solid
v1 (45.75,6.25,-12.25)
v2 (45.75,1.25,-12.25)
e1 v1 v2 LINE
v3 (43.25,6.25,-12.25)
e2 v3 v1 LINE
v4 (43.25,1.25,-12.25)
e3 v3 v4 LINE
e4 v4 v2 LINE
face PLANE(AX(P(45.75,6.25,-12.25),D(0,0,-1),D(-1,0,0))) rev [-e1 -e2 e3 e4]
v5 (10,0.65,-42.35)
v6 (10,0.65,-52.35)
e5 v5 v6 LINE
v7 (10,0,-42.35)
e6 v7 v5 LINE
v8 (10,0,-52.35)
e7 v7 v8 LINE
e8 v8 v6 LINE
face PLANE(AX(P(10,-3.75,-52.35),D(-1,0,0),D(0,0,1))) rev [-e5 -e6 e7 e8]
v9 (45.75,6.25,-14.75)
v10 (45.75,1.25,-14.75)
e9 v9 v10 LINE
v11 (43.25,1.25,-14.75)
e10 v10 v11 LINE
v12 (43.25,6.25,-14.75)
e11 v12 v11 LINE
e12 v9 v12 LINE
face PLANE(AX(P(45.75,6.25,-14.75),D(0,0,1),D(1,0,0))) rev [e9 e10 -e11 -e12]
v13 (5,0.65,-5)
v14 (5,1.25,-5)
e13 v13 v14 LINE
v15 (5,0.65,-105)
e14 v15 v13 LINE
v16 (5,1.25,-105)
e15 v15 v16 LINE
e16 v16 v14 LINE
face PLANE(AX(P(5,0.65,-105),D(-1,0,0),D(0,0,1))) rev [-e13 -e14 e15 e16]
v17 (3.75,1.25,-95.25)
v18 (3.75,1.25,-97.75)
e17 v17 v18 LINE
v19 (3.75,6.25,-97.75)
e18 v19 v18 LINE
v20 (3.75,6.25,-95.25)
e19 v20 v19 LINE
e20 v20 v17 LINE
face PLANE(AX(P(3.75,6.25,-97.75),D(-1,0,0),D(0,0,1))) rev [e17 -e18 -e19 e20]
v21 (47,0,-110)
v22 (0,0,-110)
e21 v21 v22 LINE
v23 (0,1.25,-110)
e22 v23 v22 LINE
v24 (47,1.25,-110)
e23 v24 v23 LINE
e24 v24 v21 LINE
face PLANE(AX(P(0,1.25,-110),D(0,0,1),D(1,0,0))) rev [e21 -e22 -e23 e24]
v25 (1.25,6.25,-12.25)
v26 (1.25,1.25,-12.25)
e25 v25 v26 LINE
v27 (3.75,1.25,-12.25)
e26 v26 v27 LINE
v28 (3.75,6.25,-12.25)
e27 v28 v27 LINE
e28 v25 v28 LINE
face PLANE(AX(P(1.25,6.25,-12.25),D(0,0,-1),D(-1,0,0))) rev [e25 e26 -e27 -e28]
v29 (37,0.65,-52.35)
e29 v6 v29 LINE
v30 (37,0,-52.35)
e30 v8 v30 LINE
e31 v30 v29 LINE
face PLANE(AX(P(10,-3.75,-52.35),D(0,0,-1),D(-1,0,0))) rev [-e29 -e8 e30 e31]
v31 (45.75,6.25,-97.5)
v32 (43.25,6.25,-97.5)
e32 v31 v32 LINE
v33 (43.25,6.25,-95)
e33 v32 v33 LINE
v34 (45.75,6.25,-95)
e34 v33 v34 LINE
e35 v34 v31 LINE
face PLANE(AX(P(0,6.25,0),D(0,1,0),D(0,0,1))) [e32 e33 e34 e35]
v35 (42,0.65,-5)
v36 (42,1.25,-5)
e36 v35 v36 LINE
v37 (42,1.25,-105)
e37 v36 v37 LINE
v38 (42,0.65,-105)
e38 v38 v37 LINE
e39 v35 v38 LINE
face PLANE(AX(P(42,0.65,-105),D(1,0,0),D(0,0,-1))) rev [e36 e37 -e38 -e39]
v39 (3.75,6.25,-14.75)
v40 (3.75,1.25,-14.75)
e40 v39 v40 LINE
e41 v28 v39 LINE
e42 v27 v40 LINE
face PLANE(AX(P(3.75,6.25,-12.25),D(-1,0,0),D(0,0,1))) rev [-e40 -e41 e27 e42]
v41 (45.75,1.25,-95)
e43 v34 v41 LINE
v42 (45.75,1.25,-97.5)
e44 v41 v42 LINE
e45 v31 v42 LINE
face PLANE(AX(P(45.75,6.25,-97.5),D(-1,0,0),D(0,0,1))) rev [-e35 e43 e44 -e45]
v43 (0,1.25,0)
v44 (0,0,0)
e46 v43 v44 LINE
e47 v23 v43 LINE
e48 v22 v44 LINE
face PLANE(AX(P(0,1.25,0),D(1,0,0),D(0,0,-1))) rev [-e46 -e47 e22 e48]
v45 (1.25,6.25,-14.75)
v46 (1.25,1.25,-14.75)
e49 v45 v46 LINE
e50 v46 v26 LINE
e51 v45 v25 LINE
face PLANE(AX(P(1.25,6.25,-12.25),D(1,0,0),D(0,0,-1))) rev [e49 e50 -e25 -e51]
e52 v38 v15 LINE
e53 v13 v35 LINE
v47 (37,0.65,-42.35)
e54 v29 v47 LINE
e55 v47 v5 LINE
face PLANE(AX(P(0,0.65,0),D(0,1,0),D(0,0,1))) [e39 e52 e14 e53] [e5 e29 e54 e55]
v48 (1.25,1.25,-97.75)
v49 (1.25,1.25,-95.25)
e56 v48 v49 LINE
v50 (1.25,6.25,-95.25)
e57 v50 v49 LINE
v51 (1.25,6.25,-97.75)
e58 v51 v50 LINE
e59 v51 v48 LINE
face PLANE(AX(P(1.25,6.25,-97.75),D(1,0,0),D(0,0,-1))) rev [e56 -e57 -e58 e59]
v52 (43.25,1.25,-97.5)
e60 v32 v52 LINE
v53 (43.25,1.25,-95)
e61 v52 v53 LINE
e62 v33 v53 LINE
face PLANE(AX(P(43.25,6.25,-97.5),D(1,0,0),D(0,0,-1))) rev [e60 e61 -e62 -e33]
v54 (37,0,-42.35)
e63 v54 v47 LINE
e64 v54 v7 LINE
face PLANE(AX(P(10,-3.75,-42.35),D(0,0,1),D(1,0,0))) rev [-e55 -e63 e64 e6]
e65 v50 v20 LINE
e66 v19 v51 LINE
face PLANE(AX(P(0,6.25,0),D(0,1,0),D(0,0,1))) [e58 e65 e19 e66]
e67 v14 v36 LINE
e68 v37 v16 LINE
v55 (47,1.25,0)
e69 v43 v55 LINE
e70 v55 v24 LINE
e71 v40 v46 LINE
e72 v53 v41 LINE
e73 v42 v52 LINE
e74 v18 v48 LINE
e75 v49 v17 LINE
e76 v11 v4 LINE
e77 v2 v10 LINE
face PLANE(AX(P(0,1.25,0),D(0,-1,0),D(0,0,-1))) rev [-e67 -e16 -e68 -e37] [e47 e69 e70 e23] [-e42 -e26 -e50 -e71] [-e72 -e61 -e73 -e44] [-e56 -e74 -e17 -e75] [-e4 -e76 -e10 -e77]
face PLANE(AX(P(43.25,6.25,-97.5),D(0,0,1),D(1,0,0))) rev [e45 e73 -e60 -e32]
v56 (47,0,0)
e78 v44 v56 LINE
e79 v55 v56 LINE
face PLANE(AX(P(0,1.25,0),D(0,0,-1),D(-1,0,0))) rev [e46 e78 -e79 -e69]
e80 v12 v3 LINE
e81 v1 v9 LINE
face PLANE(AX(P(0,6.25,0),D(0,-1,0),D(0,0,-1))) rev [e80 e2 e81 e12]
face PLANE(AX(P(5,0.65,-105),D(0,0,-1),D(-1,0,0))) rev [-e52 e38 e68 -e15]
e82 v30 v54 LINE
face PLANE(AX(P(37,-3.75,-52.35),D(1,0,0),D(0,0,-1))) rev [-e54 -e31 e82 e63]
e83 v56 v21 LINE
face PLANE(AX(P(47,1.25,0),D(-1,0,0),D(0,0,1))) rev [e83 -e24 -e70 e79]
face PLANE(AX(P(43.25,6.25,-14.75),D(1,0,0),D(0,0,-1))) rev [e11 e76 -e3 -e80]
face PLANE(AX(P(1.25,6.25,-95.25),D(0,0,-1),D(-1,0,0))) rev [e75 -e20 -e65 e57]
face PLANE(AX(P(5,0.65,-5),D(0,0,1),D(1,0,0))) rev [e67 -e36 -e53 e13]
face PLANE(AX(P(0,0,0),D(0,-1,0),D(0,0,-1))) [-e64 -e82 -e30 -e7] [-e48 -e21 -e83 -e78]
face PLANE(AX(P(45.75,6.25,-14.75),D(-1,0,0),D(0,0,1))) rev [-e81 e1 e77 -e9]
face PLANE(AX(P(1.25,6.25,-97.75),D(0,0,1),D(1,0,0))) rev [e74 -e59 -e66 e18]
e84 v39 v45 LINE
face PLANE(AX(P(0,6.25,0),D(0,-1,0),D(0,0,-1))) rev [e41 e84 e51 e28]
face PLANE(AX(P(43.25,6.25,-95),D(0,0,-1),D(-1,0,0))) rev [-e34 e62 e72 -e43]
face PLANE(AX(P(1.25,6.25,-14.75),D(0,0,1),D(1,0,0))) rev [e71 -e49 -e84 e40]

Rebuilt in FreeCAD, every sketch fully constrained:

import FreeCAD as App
import Part
import Sketcher
from FreeCAD import Vector
Q = App.Units.Quantity

doc = App.newDocument("Part")
params = doc.addObject("Spreadsheet::Sheet", "Params")
for row, (alias, value) in enumerate([
    ("sketch1_width", "47 mm"),
    ("sketch1_height", "110 mm"),
    ("pad1_length", "1.25 mm"),
    ("sketch2_width", "2.5 mm"),
    ("pad2_length", "5 mm"),
    ("sketch3_width", "27 mm"),
    ("sketch3_height", "10 mm"),
    ("pocket1_length", "5 mm"),
    ("sketch4_width", "37 mm"),
    ("sketch4_height", "100 mm"),
    ("pocket2_length", "0.6 mm"),
], start=1):
    params.set(f"A{row}", alias)
    params.set(f"B{row}", "=" + value)
    params.setAlias(f"B{row}", alias)

body = doc.addObject("PartDesign::Body", "Body")

# Sketch on XZ plane
sketch1 = body.newObject("Sketcher::SketchObject", "Sketch")
sketch1.AttachmentSupport = (doc.getObject("XZ_Plane"), [""])
sketch1.MapMode = "FlatFace"
sketch1.addGeometry([
    Part.LineSegment(Vector(0, -110, 0), Vector(0, 0, 0)),
    Part.LineSegment(Vector(0, 0, 0), Vector(47, 0, 0)),
    Part.LineSegment(Vector(47, 0, 0), Vector(47, -110, 0)),
    Part.LineSegment(Vector(47, -110, 0), Vector(0, -110, 0)),
], False)
sketch1.addConstraint([
    Sketcher.Constraint("Coincident", 0, 2, 1, 1),
    Sketcher.Constraint("Coincident", 1, 2, 2, 1),
    Sketcher.Constraint("Coincident", 2, 2, 3, 1),
    Sketcher.Constraint("Coincident", 3, 2, 0, 1),
    Sketcher.Constraint("Vertical", 0),
    Sketcher.Constraint("Horizontal", 1),
    Sketcher.Constraint("Vertical", 2),
    Sketcher.Constraint("Horizontal", 3),
    Sketcher.Constraint("Coincident", 0, 2, -1, 1),
    Sketcher.Constraint("DistanceX", 1, 1, 1, 2, Q("47 mm")),
    Sketcher.Constraint("DistanceY", 0, 1, 0, 2, Q("110 mm")),
])
sketch1.setExpression("Constraints[9]", "Params.sketch1_width")
sketch1.setExpression("Constraints[10]", "Params.sketch1_height")
pad1 = body.newObject("PartDesign::Pad", "Pad")
pad1.Profile = sketch1
pad1.setExpression("Length", "Params.pad1_length")
pad1.Reversed = True

# Sketch on XZ plane
sketch2 = body.newObject("Sketcher::SketchObject", "Sketch001")
sketch2.AttachmentSupport = (doc.getObject("XZ_Plane"), [""])
sketch2.MapMode = "FlatFace"
sketch2.AttachmentOffset = App.Placement(Vector(0, 0, -1.25), App.Rotation())
sketch2.addGeometry([
    Part.LineSegment(Vector(43.25, -97.5, 0), Vector(43.25, -95, 0)),  # 0
    Part.LineSegment(Vector(43.25, -95, 0), Vector(45.75, -95, 0)),  # 1
    Part.LineSegment(Vector(45.75, -95, 0), Vector(45.75, -97.5, 0)),  # 2
    Part.LineSegment(Vector(45.75, -97.5, 0), Vector(43.25, -97.5, 0)),  # 3
    Part.LineSegment(Vector(43.25, -14.75, 0), Vector(43.25, -12.25, 0)),  # 4
    Part.LineSegment(Vector(43.25, -12.25, 0), Vector(45.75, -12.25, 0)),  # 5
    Part.LineSegment(Vector(45.75, -12.25, 0), Vector(45.75, -14.75, 0)),  # 6
    Part.LineSegment(Vector(45.75, -14.75, 0), Vector(43.25, -14.75, 0)),  # 7
    Part.LineSegment(Vector(1.25, -14.75, 0), Vector(1.25, -12.25, 0)),  # 8
    Part.LineSegment(Vector(1.25, -12.25, 0), Vector(3.75, -12.25, 0)),  # 9
    Part.LineSegment(Vector(3.75, -12.25, 0), Vector(3.75, -14.75, 0)),  # 10
    Part.LineSegment(Vector(3.75, -14.75, 0), Vector(1.25, -14.75, 0)),  # 11
    Part.LineSegment(Vector(1.25, -97.75, 0), Vector(1.25, -95.25, 0)),  # 12
    Part.LineSegment(Vector(1.25, -95.25, 0), Vector(3.75, -95.25, 0)),  # 13
    Part.LineSegment(Vector(3.75, -95.25, 0), Vector(3.75, -97.75, 0)),  # 14
    Part.LineSegment(Vector(3.75, -97.75, 0), Vector(1.25, -97.75, 0)),  # 15
], False)
sketch2.addConstraint([
    Sketcher.Constraint("Coincident", 0, 2, 1, 1),
    Sketcher.Constraint("Coincident", 1, 2, 2, 1),
    Sketcher.Constraint("Coincident", 2, 2, 3, 1),
    Sketcher.Constraint("Coincident", 3, 2, 0, 1),
    Sketcher.Constraint("Coincident", 4, 2, 5, 1),
    Sketcher.Constraint("Coincident", 5, 2, 6, 1),
    Sketcher.Constraint("Coincident", 6, 2, 7, 1),
    Sketcher.Constraint("Coincident", 7, 2, 4, 1),
    Sketcher.Constraint("Coincident", 8, 2, 9, 1),
    Sketcher.Constraint("Coincident", 9, 2, 10, 1),
    Sketcher.Constraint("Coincident", 10, 2, 11, 1),
    Sketcher.Constraint("Coincident", 11, 2, 8, 1),
    Sketcher.Constraint("Coincident", 12, 2, 13, 1),
    Sketcher.Constraint("Coincident", 13, 2, 14, 1),
    Sketcher.Constraint("Coincident", 14, 2, 15, 1),
    Sketcher.Constraint("Coincident", 15, 2, 12, 1),
    Sketcher.Constraint("Vertical", 0),
    Sketcher.Constraint("Horizontal", 1),
    Sketcher.Constraint("Vertical", 2),
    Sketcher.Constraint("Horizontal", 3),
    Sketcher.Constraint("Vertical", 4),
    Sketcher.Constraint("Horizontal", 5),
    Sketcher.Constraint("Vertical", 6),
    Sketcher.Constraint("Horizontal", 7),
    Sketcher.Constraint("Vertical", 8),
    Sketcher.Constraint("Horizontal", 9),
    Sketcher.Constraint("Vertical", 10),
    Sketcher.Constraint("Horizontal", 11),
    Sketcher.Constraint("Vertical", 12),
    Sketcher.Constraint("Horizontal", 13),
    Sketcher.Constraint("Vertical", 14),
    Sketcher.Constraint("Horizontal", 15),
    Sketcher.Constraint("Horizontal", 5, 2, 8, 2),
    Sketcher.Constraint("Horizontal", 7, 2, 10, 2),
    Sketcher.Constraint("Vertical", 3, 2, 4, 2),
    Sketcher.Constraint("Vertical", 2, 2, 5, 2),
    Sketcher.Constraint("Vertical", 11, 2, 12, 2),
    Sketcher.Constraint("Vertical", 10, 2, 13, 2),
    Sketcher.Constraint("Equal", 7, 9),
    Sketcher.Constraint("Equal", 15, 0),
    Sketcher.Constraint("Equal", 2, 4),
    Sketcher.Constraint("Equal", 10, 12),
    Sketcher.Constraint("DistanceX", 1, 1, 1, 2, Q("2.5 mm")),
    Sketcher.Constraint("DistanceY", 0, 2, -1, 1, Q("95 mm")),
    Sketcher.Constraint("DistanceX", 8, 2, 4, 2, Q("42 mm")),
    Sketcher.Constraint("DistanceY", 12, 2, 11, 2, Q("80.5 mm")),
    Sketcher.Constraint("DistanceX", -1, 1, 0, 2, Q("43.25 mm")),
    Sketcher.Constraint("DistanceY", 4, 2, -1, 1, Q("12.25 mm")),
])
sketch2.setExpression("Constraints[42]", "Params.sketch2_width")
pad2 = body.newObject("PartDesign::Pad", "Pad001")
pad2.Profile = sketch2
pad2.setExpression("Length", "Params.pad2_length")
pad2.Reversed = True

# Sketch on XZ plane
sketch3 = body.newObject("Sketcher::SketchObject", "Sketch002")
sketch3.AttachmentSupport = (doc.getObject("XZ_Plane"), [""])
sketch3.MapMode = "FlatFace"
sketch3.AttachmentOffset = App.Placement(Vector(0, 0, -1.25), App.Rotation())
sketch3.addGeometry([
    Part.LineSegment(Vector(10, -52.35, 0), Vector(10, -42.35, 0)),
    Part.LineSegment(Vector(10, -42.35, 0), Vector(37, -42.35, 0)),
    Part.LineSegment(Vector(37, -42.35, 0), Vector(37, -52.35, 0)),
    Part.LineSegment(Vector(37, -52.35, 0), Vector(10, -52.35, 0)),
], False)
sketch3.addConstraint([
    Sketcher.Constraint("Coincident", 0, 2, 1, 1),
    Sketcher.Constraint("Coincident", 1, 2, 2, 1),
    Sketcher.Constraint("Coincident", 2, 2, 3, 1),
    Sketcher.Constraint("Coincident", 3, 2, 0, 1),
    Sketcher.Constraint("Vertical", 0),
    Sketcher.Constraint("Horizontal", 1),
    Sketcher.Constraint("Vertical", 2),
    Sketcher.Constraint("Horizontal", 3),
    Sketcher.Constraint("DistanceX", 1, 1, 1, 2, Q("27 mm")),
    Sketcher.Constraint("DistanceY", 0, 1, 0, 2, Q("10 mm")),
    Sketcher.Constraint("DistanceX", -1, 1, 0, 2, Q("10 mm")),
    Sketcher.Constraint("DistanceY", 0, 2, -1, 1, Q("42.35 mm")),
])
sketch3.setExpression("Constraints[8]", "Params.sketch3_width")
sketch3.setExpression("Constraints[9]", "Params.sketch3_height")
pocket1 = body.newObject("PartDesign::Pocket", "Pocket")
pocket1.Profile = sketch3
pocket1.setExpression("Length", "Params.pocket1_length")
pocket1.Reversed = True

# Sketch on XZ plane
sketch4 = body.newObject("Sketcher::SketchObject", "Sketch003")
sketch4.AttachmentSupport = (doc.getObject("XZ_Plane"), [""])
sketch4.MapMode = "FlatFace"
sketch4.AttachmentOffset = App.Placement(Vector(0, 0, -1.25), App.Rotation())
sketch4.addGeometry([
    Part.LineSegment(Vector(5, -105, 0), Vector(5, -5, 0)),
    Part.LineSegment(Vector(5, -5, 0), Vector(42, -5, 0)),
    Part.LineSegment(Vector(42, -5, 0), Vector(42, -105, 0)),
    Part.LineSegment(Vector(42, -105, 0), Vector(5, -105, 0)),
], False)
sketch4.addConstraint([
    Sketcher.Constraint("Coincident", 0, 2, 1, 1),
    Sketcher.Constraint("Coincident", 1, 2, 2, 1),
    Sketcher.Constraint("Coincident", 2, 2, 3, 1),
    Sketcher.Constraint("Coincident", 3, 2, 0, 1),
    Sketcher.Constraint("Vertical", 0),
    Sketcher.Constraint("Horizontal", 1),
    Sketcher.Constraint("Vertical", 2),
    Sketcher.Constraint("Horizontal", 3),
    Sketcher.Constraint("DistanceX", 1, 1, 1, 2, Q("37 mm")),
    Sketcher.Constraint("DistanceY", 0, 1, 0, 2, Q("100 mm")),
    Sketcher.Constraint("DistanceX", -1, 1, 0, 2, Q("5 mm")),
    Sketcher.Constraint("DistanceY", 0, 2, -1, 1, Q("5 mm")),
])
sketch4.setExpression("Constraints[8]", "Params.sketch4_width")
sketch4.setExpression("Constraints[9]", "Params.sketch4_height")
pocket2 = body.newObject("PartDesign::Pocket", "Pocket001")
pocket2.Profile = sketch4
pocket2.setExpression("Length", "Params.pocket2_length")
pocket2.Reversed = True

doc.recompute()
